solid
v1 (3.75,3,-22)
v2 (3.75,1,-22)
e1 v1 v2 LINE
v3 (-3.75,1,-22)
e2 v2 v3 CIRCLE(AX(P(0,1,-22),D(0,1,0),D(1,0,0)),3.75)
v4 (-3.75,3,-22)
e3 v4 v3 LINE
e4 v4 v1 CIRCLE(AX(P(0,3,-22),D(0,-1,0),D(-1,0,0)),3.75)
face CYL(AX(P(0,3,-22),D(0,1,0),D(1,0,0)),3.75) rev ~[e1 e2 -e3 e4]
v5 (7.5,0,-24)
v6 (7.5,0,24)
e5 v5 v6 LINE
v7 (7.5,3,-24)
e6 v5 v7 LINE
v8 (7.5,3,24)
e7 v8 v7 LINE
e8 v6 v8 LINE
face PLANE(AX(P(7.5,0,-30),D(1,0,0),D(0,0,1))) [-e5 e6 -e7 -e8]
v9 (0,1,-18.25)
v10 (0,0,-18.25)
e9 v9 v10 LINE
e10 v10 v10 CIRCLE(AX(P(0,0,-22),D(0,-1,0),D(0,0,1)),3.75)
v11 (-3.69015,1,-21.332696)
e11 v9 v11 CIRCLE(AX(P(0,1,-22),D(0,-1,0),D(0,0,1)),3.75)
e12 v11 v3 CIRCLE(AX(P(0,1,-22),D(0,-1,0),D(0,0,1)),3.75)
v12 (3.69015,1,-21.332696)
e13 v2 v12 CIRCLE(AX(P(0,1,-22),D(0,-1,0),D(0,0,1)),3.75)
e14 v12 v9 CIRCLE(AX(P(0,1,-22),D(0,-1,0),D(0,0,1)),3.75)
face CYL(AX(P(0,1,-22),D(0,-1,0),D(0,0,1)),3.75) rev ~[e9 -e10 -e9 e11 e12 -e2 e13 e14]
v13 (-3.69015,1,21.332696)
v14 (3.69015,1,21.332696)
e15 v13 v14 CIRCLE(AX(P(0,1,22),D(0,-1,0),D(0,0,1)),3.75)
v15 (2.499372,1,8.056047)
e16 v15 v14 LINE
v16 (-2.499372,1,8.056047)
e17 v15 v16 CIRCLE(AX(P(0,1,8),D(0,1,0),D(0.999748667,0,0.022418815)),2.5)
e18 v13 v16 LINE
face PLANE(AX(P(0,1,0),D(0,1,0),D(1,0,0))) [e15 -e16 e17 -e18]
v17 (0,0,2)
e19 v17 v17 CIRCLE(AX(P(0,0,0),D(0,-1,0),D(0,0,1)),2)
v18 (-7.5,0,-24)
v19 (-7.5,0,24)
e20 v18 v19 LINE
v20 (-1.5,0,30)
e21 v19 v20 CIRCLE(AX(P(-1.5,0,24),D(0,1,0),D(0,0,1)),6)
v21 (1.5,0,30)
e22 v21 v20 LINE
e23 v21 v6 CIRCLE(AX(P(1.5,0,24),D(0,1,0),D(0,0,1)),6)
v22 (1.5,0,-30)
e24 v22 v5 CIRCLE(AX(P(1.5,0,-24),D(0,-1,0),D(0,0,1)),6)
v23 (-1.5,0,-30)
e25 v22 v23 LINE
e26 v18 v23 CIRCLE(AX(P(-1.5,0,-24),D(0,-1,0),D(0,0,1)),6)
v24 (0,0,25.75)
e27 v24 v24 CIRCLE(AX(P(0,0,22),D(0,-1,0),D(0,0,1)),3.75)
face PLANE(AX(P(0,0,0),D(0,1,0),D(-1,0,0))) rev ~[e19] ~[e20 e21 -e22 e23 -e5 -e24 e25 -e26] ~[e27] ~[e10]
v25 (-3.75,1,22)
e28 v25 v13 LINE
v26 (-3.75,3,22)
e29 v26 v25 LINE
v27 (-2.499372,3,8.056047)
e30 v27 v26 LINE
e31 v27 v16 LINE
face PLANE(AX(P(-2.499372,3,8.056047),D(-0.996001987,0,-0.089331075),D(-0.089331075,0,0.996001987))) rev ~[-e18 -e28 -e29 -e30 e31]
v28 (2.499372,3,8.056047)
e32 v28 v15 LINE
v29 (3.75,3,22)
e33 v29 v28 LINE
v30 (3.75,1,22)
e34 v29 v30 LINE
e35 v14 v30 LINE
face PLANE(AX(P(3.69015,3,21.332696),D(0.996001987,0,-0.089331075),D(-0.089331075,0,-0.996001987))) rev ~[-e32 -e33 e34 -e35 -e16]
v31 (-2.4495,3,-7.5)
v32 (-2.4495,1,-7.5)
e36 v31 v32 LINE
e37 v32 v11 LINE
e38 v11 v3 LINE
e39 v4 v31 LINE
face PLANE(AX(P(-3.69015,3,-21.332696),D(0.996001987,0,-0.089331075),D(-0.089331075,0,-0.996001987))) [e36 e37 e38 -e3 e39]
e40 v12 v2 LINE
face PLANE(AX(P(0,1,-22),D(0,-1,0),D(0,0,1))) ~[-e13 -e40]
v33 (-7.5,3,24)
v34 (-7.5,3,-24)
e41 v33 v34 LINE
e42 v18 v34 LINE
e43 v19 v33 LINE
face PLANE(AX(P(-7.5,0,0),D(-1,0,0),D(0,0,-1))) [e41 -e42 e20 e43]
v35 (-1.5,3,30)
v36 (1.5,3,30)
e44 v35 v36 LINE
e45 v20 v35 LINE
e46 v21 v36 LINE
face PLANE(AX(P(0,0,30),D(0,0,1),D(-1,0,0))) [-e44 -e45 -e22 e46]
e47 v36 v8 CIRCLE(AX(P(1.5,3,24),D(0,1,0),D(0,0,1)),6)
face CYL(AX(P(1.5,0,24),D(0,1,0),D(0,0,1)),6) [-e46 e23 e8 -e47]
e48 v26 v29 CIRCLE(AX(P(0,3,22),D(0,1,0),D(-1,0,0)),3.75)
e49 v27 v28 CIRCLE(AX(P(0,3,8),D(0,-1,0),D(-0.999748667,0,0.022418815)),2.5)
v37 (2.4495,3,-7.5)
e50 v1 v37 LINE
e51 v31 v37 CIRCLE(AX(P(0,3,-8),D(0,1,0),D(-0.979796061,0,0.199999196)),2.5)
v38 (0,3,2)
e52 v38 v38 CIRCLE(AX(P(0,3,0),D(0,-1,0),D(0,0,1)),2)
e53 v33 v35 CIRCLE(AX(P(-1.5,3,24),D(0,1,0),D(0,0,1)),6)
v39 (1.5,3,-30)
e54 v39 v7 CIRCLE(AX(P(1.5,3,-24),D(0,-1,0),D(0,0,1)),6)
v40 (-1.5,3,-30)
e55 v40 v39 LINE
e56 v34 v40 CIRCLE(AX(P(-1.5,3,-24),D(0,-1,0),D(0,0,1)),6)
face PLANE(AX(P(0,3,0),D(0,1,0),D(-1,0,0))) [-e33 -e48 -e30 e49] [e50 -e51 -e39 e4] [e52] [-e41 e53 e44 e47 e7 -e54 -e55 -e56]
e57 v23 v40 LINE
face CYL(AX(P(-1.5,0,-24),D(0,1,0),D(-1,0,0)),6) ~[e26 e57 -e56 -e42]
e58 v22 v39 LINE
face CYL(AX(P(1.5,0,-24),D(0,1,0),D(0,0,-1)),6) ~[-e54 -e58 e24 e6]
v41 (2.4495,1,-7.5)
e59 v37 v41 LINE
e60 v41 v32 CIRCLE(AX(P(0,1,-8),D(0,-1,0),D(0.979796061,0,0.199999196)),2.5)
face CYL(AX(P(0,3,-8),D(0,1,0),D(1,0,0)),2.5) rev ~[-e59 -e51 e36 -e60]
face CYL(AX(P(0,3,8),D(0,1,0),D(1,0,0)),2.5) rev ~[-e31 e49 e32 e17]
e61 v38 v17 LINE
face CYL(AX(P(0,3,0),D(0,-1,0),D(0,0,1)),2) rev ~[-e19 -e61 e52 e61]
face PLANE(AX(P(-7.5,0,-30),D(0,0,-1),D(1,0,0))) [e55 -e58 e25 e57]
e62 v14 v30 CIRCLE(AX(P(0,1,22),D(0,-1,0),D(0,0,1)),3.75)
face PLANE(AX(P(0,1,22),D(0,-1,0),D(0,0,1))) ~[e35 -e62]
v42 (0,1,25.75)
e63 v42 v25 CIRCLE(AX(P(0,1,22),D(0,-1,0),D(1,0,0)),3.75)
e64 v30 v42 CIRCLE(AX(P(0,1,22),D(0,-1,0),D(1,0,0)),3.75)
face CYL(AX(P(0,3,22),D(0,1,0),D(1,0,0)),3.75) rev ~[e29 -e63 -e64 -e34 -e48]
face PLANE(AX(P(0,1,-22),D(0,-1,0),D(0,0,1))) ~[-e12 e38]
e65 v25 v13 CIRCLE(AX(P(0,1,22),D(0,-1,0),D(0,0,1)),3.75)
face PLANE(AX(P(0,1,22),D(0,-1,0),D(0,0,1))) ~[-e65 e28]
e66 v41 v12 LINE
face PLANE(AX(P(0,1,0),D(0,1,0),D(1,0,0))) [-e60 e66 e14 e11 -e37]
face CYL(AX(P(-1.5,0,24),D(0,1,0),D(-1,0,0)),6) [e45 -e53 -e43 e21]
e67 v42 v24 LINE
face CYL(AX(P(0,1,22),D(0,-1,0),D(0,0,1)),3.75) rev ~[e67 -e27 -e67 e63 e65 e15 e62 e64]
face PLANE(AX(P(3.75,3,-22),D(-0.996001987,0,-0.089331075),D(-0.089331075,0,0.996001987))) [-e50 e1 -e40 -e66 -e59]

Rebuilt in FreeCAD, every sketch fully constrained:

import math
import FreeCAD as App
import Part
import Sketcher

V = App.Vector


def edges_at(feature, points):
    """Names of the edges that pass closest to the given points."""
    edges = feature.Shape.Edges
    near = lambda p: min(range(len(edges)), key=lambda i: edges[i].distToShape(Part.Vertex(*p))[0])
    return sorted({f"Edge{near(p) + 1}" for p in points})

doc = App.newDocument("Part")
params = doc.addObject("Spreadsheet::Sheet", "Params")
for row, (alias, value) in enumerate([
    ("sketch1_width", "15 mm"),
    ("sketch1_height", "60 mm"),
    ("pad1_length", "3 mm"),
    ("sketch2_radius", "2.5 mm"),
    ("sketch2_radius2", "3.75 mm"),
    ("sketch2_length", "14 mm"),
    ("pocket1_length", "2 mm"),
    ("sketch3_diameter", "7.5 mm"),
    ("hole_diameter", "7.5 mm"),
    ("fillet_radius", "6 mm"),
    ("sketch4_diameter", "4 mm"),
    ("hole2_diameter", "4 mm"),
], start=1):
    params.set(f"A{row}", alias)
    params.set(f"B{row}", "=" + value)
    params.setAlias(f"B{row}", alias)

body = doc.addObject("PartDesign::Body", "Body")

# Sketch on XZ plane
sketch1 = doc.addObject("Sketcher::SketchObject", "Sketch")
body.addObject(sketch1)
sketch1.AttachmentSupport = (doc.XZ_Plane, [""])
sketch1.MapMode = "FlatFace"
sketch1.addGeometry(Part.LineSegment(V(-8, -30, 0), V(-8, 30, 0)), False)
sketch1.addGeometry(Part.LineSegment(V(-8, 30, 0), V(8, 30, 0)), False)
sketch1.addGeometry(Part.LineSegment(V(8, 30, 0), V(8, -30, 0)), False)
sketch1.addGeometry(Part.LineSegment(V(8, -30, 0), V(-8, -30, 0)), False)
sketch1.addConstraint(Sketcher.Constraint("Coincident", 0, 2, 1, 1))
sketch1.addConstraint(Sketcher.Constraint("Coincident", 1, 2, 2, 1))
sketch1.addConstraint(Sketcher.Constraint("Coincident", 2, 2, 3, 1))
sketch1.addConstraint(Sketcher.Constraint("Coincident", 3, 2, 0, 1))
sketch1.addConstraint(Sketcher.Constraint("Vertical", 0))
sketch1.addConstraint(Sketcher.Constraint("Horizontal", 1))
sketch1.addConstraint(Sketcher.Constraint("Vertical", 2))
sketch1.addConstraint(Sketcher.Constraint("Horizontal", 3))
sketch1.addConstraint(Sketcher.Constraint("Symmetric", 0, 2, 2, 2, -1, 1))
sketch1.addConstraint(Sketcher.Constraint("DistanceX", 1, 1, 1, 2, 15.0))
sketch1.addConstraint(Sketcher.Constraint("DistanceY", 0, 1, 0, 2, 60.0))
sketch1.setExpression("Constraints[9]", "Params.sketch1_width")
sketch1.setExpression("Constraints[10]", "Params.sketch1_height")
pad1 = doc.addObject("PartDesign::Pad", "Pad")
body.addObject(pad1)
pad1.Profile = sketch1
pad1.setExpression("Length", "Params.pad1_length")
pad1.Reversed = True

# Sketch on XZ plane
sketch2 = doc.addObject("Sketcher::SketchObject", "Sketch001")
body.addObject(sketch2)
sketch2.AttachmentSupport = (doc.XZ_Plane, [""])
sketch2.MapMode = "FlatFace"
sketch2.AttachmentOffset = App.Placement(V(0, 0, -3), App.Rotation())
sketch2.addGeometry(Part.ArcOfCircle(Part.Circle(V(0, -22, 0), V(0, 0, 1), 3.8), math.radians(180), math.radians(360)), False)
sketch2.addGeometry(Part.LineSegment(V(-3.8, -22, 0), V(-2.4, -7.5, 0)), False)
sketch2.addGeometry(Part.ArcOfCircle(Part.Circle(V(0, -8, 0), V(0, 0, 1), 2.5), math.radians(12), math.radians(168)), False)
sketch2.addGeometry(Part.LineSegment(V(2.4, -7.5, 0), V(3.8, -22, 0)), False)
sketch2.addGeometry(Part.LineSegment(V(-2.5, 8.1, 0), V(-3.8, 22, 0)), False)
sketch2.addGeometry(Part.ArcOfCircle(Part.Circle(V(0, 22, 0), V(0, 0, 1), 3.8), math.radians(0), math.radians(180)), False)
sketch2.addGeometry(Part.LineSegment(V(3.8, 22, 0), V(2.5, 8.1, 0)), False)
sketch2.addGeometry(Part.ArcOfCircle(Part.Circle(V(0, 8, 0), V(0, 0, 1), 2.5), math.radians(179), math.radians(361)), False)
sketch2.addConstraint(Sketcher.Constraint("Coincident", 0, 1, 1, 1))
sketch2.addConstraint(Sketcher.Constraint("Coincident", 1, 2, 2, 2))
sketch2.addConstraint(Sketcher.Constraint("Coincident", 2, 1, 3, 1))
sketch2.addConstraint(Sketcher.Constraint("Coincident", 3, 2, 0, 2))
sketch2.addConstraint(Sketcher.Constraint("Coincident", 4, 2, 5, 2))
sketch2.addConstraint(Sketcher.Constraint("Coincident", 5, 1, 6, 1))
sketch2.addConstraint(Sketcher.Constraint("Coincident", 6, 2, 7, 2))
sketch2.addConstraint(Sketcher.Constraint("Coincident", 7, 1, 4, 1))
sketch2.addConstraint(Sketcher.Constraint("Equal", 0, 5))
sketch2.addConstraint(Sketcher.Constraint("Equal", 2, 7))
sketch2.addConstraint(Sketcher.Constraint("Symmetric", 0, 3, 5, 3, -1, 1))
sketch2.addConstraint(Sketcher.Constraint("Symmetric", 2, 3, 7, 3, -1, 1))
sketch2.addConstraint(Sketcher.Constraint("Symmetric", 1, 2, 2, 1, -2))
sketch2.addConstraint(Sketcher.Constraint("Symmetric", 0, 1, 3, 2, -2))
sketch2.addConstraint(Sketcher.Constraint("Parallel", 3, 4))
sketch2.addConstraint(Sketcher.Constraint("Parallel", 1, 6))
sketch2.addConstraint(Sketcher.Constraint("Horizontal", 5, 3, 4, 2))
sketch2.addConstraint(Sketcher.Constraint("Horizontal", 4, 2, 5, 1))
sketch2.addConstraint(Sketcher.Constraint("Radius", 2, 2.5))
sketch2.addConstraint(Sketcher.Constraint("Radius", 0, 3.75))
sketch2.addConstraint(Sketcher.Constraint("DistanceY", 2, 3, -1, 1, 8.0))
sketch2.addConstraint(Sketcher.Constraint("DistanceY", 1, 2, -1, 1, 7.5))
sketch2.addConstraint(Sketcher.Constraint("Distance", 4, 14.0))
sketch2.addConstraint(Sketcher.Constraint("DistanceY", 0, 3, -1, 1, 22.0))
sketch2.setExpression("Constraints[18]", "Params.sketch2_radius")
sketch2.setExpression("Constraints[19]", "Params.sketch2_radius2")
sketch2.setExpression("Constraints[22]", "Params.sketch2_length")
pocket1 = doc.addObject("PartDesign::Pocket", "Pocket")
body.addObject(pocket1)
pocket1.Profile = sketch2
pocket1.setExpression("Length", "Params.pocket1_length")
pocket1.Reversed = True

# Sketch on XZ plane
sketch3 = doc.addObject("Sketcher::SketchObject", "Sketch002")
body.addObject(sketch3)
sketch3.AttachmentSupport = (doc.XZ_Plane, [""])
sketch3.MapMode = "FlatFace"
sketch3.AttachmentOffset = App.Placement(V(0, 0, -1), App.Rotation())
sketch3.addGeometry(Part.Circle(V(0, 22, 0), V(0, 0, 1), 3.8), False)
sketch3.addGeometry(Part.Circle(V(0, -22, 0), V(0, 0, 1), 3.8), False)
sketch3.addConstraint(Sketcher.Constraint("Equal", 0, 1))
sketch3.addConstraint(Sketcher.Constraint("Symmetric", 0, 3, 1, 3, -1, 1))
sketch3.addConstraint(Sketcher.Constraint("PointOnObject", 0, 3, -2))
sketch3.addConstraint(Sketcher.Constraint("Diameter", 0, 7.5))
sketch3.addConstraint(Sketcher.Constraint("DistanceY", -1, 1, 0, 3, 22.0))
sketch3.setExpression("Constraints[3]", "Params.sketch3_diameter")
doc.recompute()
hole = doc.addObject("PartDesign::Hole", "Hole")
body.addObject(hole)
hole.Profile = sketch3
hole.ThreadType = "None"
hole.setExpression("Diameter", "Params.hole_diameter")
hole.DepthType = "ThroughAll"
hole.Reversed = True
doc.recompute()

fillet = doc.addObject("PartDesign::Fillet", "Fillet")
body.addObject(fillet)
fillet.Base = (hole, edges_at(hole, [
    (7.5, 1.5, -30),
    (-7.5, 1.5, -30),
    (-7.5, 1.5, 30),
    (7.5, 1.5, 30),
]))
fillet.setExpression("Radius", "Params.fillet_radius")

# Sketch on XZ plane
sketch4 = doc.addObject("Sketcher::SketchObject", "Sketch003")
body.addObject(sketch4)
sketch4.AttachmentSupport = (doc.XZ_Plane, [""])
sketch4.MapMode = "FlatFace"
sketch4.AttachmentOffset = App.Placement(V(0, 0, -3), App.Rotation())
sketch4.addGeometry(Part.Circle(V(0, 0, 0), V(0, 0, 1), 2), False)
sketch4.addConstraint(Sketcher.Constraint("Coincident", 0, 3, -1, 1))
sketch4.addConstraint(Sketcher.Constraint("Diameter", 0, 4.0))
sketch4.setExpression("Constraints[1]", "Params.sketch4_diameter")
doc.recompute()
hole2 = doc.addObject("PartDesign::Hole", "Hole001")
body.addObject(hole2)
hole2.Profile = sketch4
hole2.ThreadType = "None"
hole2.setExpression("Diameter", "Params.hole2_diameter")
hole2.DepthType = "ThroughAll"
hole2.Reversed = True

doc.recompute()
